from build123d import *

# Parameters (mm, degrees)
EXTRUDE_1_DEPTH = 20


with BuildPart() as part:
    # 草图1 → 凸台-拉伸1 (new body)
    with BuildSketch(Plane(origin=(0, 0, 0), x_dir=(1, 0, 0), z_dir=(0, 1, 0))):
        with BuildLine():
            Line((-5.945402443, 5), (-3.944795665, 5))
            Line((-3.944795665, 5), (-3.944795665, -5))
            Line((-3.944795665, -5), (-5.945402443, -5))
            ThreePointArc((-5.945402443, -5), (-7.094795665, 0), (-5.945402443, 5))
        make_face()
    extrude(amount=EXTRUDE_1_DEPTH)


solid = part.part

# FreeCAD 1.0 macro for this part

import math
import FreeCAD as App
import Part
import Sketcher

doc = App.newDocument("Part")
body = doc.addObject("PartDesign::Body", "Body")

# Sketch on XZ plane
sketch1 = doc.addObject("Sketcher::SketchObject", "Sketch")
body.addObject(sketch1)
sketch1.AttachmentSupport = (doc.XZ_Plane, [""])
sketch1.MapMode = "FlatFace"
sketch1.addGeometry([
    Part.LineSegment(App.Vector(-3.944796, -5, 0), App.Vector(-5.945402, -5, 0)),
    Part.ArcOfCircle(Part.Circle(App.Vector(4.355204, 0, 0), App.Vector(0, 0, 1), 11.45), math.radians(154.107679), math.radians(205.892321)),
    Part.LineSegment(App.Vector(-5.945402, 5, 0), App.Vector(-3.944796, 5, 0)),
    Part.LineSegment(App.Vector(-3.944796, 5, 0), App.Vector(-3.944796, -5, 0)),
], False)
sketch1.addConstraint([
    Sketcher.Constraint("Coincident", 0, 2, 1, 2),
    Sketcher.Constraint("Coincident", 1, 1, 2, 1),
    Sketcher.Constraint("Coincident", 2, 2, 3, 1),
    Sketcher.Constraint("Coincident", 3, 2, 0, 1),
    Sketcher.Constraint("Horizontal", 0),
    Sketcher.Constraint("Horizontal", 2),
    Sketcher.Constraint("Vertical", 3),
    Sketcher.Constraint("Symmetric", 0, 2, 1, 1, -1),
    Sketcher.Constraint("DistanceY", 3, 2, 3, 1, 10.0),
    Sketcher.Constraint("Radius", 1, 11.45),
    Sketcher.Constraint("DistanceX", 2, 2, 1, 3, 8.3),
    Sketcher.Constraint("DistanceX", -1, 1, 1, 3, 4.355204),
])
pad1 = doc.addObject("PartDesign::Pad", "Pad")
body.addObject(pad1)
pad1.Profile = sketch1
pad1.Length = 20
pad1.Reversed = True

doc.recompute()
